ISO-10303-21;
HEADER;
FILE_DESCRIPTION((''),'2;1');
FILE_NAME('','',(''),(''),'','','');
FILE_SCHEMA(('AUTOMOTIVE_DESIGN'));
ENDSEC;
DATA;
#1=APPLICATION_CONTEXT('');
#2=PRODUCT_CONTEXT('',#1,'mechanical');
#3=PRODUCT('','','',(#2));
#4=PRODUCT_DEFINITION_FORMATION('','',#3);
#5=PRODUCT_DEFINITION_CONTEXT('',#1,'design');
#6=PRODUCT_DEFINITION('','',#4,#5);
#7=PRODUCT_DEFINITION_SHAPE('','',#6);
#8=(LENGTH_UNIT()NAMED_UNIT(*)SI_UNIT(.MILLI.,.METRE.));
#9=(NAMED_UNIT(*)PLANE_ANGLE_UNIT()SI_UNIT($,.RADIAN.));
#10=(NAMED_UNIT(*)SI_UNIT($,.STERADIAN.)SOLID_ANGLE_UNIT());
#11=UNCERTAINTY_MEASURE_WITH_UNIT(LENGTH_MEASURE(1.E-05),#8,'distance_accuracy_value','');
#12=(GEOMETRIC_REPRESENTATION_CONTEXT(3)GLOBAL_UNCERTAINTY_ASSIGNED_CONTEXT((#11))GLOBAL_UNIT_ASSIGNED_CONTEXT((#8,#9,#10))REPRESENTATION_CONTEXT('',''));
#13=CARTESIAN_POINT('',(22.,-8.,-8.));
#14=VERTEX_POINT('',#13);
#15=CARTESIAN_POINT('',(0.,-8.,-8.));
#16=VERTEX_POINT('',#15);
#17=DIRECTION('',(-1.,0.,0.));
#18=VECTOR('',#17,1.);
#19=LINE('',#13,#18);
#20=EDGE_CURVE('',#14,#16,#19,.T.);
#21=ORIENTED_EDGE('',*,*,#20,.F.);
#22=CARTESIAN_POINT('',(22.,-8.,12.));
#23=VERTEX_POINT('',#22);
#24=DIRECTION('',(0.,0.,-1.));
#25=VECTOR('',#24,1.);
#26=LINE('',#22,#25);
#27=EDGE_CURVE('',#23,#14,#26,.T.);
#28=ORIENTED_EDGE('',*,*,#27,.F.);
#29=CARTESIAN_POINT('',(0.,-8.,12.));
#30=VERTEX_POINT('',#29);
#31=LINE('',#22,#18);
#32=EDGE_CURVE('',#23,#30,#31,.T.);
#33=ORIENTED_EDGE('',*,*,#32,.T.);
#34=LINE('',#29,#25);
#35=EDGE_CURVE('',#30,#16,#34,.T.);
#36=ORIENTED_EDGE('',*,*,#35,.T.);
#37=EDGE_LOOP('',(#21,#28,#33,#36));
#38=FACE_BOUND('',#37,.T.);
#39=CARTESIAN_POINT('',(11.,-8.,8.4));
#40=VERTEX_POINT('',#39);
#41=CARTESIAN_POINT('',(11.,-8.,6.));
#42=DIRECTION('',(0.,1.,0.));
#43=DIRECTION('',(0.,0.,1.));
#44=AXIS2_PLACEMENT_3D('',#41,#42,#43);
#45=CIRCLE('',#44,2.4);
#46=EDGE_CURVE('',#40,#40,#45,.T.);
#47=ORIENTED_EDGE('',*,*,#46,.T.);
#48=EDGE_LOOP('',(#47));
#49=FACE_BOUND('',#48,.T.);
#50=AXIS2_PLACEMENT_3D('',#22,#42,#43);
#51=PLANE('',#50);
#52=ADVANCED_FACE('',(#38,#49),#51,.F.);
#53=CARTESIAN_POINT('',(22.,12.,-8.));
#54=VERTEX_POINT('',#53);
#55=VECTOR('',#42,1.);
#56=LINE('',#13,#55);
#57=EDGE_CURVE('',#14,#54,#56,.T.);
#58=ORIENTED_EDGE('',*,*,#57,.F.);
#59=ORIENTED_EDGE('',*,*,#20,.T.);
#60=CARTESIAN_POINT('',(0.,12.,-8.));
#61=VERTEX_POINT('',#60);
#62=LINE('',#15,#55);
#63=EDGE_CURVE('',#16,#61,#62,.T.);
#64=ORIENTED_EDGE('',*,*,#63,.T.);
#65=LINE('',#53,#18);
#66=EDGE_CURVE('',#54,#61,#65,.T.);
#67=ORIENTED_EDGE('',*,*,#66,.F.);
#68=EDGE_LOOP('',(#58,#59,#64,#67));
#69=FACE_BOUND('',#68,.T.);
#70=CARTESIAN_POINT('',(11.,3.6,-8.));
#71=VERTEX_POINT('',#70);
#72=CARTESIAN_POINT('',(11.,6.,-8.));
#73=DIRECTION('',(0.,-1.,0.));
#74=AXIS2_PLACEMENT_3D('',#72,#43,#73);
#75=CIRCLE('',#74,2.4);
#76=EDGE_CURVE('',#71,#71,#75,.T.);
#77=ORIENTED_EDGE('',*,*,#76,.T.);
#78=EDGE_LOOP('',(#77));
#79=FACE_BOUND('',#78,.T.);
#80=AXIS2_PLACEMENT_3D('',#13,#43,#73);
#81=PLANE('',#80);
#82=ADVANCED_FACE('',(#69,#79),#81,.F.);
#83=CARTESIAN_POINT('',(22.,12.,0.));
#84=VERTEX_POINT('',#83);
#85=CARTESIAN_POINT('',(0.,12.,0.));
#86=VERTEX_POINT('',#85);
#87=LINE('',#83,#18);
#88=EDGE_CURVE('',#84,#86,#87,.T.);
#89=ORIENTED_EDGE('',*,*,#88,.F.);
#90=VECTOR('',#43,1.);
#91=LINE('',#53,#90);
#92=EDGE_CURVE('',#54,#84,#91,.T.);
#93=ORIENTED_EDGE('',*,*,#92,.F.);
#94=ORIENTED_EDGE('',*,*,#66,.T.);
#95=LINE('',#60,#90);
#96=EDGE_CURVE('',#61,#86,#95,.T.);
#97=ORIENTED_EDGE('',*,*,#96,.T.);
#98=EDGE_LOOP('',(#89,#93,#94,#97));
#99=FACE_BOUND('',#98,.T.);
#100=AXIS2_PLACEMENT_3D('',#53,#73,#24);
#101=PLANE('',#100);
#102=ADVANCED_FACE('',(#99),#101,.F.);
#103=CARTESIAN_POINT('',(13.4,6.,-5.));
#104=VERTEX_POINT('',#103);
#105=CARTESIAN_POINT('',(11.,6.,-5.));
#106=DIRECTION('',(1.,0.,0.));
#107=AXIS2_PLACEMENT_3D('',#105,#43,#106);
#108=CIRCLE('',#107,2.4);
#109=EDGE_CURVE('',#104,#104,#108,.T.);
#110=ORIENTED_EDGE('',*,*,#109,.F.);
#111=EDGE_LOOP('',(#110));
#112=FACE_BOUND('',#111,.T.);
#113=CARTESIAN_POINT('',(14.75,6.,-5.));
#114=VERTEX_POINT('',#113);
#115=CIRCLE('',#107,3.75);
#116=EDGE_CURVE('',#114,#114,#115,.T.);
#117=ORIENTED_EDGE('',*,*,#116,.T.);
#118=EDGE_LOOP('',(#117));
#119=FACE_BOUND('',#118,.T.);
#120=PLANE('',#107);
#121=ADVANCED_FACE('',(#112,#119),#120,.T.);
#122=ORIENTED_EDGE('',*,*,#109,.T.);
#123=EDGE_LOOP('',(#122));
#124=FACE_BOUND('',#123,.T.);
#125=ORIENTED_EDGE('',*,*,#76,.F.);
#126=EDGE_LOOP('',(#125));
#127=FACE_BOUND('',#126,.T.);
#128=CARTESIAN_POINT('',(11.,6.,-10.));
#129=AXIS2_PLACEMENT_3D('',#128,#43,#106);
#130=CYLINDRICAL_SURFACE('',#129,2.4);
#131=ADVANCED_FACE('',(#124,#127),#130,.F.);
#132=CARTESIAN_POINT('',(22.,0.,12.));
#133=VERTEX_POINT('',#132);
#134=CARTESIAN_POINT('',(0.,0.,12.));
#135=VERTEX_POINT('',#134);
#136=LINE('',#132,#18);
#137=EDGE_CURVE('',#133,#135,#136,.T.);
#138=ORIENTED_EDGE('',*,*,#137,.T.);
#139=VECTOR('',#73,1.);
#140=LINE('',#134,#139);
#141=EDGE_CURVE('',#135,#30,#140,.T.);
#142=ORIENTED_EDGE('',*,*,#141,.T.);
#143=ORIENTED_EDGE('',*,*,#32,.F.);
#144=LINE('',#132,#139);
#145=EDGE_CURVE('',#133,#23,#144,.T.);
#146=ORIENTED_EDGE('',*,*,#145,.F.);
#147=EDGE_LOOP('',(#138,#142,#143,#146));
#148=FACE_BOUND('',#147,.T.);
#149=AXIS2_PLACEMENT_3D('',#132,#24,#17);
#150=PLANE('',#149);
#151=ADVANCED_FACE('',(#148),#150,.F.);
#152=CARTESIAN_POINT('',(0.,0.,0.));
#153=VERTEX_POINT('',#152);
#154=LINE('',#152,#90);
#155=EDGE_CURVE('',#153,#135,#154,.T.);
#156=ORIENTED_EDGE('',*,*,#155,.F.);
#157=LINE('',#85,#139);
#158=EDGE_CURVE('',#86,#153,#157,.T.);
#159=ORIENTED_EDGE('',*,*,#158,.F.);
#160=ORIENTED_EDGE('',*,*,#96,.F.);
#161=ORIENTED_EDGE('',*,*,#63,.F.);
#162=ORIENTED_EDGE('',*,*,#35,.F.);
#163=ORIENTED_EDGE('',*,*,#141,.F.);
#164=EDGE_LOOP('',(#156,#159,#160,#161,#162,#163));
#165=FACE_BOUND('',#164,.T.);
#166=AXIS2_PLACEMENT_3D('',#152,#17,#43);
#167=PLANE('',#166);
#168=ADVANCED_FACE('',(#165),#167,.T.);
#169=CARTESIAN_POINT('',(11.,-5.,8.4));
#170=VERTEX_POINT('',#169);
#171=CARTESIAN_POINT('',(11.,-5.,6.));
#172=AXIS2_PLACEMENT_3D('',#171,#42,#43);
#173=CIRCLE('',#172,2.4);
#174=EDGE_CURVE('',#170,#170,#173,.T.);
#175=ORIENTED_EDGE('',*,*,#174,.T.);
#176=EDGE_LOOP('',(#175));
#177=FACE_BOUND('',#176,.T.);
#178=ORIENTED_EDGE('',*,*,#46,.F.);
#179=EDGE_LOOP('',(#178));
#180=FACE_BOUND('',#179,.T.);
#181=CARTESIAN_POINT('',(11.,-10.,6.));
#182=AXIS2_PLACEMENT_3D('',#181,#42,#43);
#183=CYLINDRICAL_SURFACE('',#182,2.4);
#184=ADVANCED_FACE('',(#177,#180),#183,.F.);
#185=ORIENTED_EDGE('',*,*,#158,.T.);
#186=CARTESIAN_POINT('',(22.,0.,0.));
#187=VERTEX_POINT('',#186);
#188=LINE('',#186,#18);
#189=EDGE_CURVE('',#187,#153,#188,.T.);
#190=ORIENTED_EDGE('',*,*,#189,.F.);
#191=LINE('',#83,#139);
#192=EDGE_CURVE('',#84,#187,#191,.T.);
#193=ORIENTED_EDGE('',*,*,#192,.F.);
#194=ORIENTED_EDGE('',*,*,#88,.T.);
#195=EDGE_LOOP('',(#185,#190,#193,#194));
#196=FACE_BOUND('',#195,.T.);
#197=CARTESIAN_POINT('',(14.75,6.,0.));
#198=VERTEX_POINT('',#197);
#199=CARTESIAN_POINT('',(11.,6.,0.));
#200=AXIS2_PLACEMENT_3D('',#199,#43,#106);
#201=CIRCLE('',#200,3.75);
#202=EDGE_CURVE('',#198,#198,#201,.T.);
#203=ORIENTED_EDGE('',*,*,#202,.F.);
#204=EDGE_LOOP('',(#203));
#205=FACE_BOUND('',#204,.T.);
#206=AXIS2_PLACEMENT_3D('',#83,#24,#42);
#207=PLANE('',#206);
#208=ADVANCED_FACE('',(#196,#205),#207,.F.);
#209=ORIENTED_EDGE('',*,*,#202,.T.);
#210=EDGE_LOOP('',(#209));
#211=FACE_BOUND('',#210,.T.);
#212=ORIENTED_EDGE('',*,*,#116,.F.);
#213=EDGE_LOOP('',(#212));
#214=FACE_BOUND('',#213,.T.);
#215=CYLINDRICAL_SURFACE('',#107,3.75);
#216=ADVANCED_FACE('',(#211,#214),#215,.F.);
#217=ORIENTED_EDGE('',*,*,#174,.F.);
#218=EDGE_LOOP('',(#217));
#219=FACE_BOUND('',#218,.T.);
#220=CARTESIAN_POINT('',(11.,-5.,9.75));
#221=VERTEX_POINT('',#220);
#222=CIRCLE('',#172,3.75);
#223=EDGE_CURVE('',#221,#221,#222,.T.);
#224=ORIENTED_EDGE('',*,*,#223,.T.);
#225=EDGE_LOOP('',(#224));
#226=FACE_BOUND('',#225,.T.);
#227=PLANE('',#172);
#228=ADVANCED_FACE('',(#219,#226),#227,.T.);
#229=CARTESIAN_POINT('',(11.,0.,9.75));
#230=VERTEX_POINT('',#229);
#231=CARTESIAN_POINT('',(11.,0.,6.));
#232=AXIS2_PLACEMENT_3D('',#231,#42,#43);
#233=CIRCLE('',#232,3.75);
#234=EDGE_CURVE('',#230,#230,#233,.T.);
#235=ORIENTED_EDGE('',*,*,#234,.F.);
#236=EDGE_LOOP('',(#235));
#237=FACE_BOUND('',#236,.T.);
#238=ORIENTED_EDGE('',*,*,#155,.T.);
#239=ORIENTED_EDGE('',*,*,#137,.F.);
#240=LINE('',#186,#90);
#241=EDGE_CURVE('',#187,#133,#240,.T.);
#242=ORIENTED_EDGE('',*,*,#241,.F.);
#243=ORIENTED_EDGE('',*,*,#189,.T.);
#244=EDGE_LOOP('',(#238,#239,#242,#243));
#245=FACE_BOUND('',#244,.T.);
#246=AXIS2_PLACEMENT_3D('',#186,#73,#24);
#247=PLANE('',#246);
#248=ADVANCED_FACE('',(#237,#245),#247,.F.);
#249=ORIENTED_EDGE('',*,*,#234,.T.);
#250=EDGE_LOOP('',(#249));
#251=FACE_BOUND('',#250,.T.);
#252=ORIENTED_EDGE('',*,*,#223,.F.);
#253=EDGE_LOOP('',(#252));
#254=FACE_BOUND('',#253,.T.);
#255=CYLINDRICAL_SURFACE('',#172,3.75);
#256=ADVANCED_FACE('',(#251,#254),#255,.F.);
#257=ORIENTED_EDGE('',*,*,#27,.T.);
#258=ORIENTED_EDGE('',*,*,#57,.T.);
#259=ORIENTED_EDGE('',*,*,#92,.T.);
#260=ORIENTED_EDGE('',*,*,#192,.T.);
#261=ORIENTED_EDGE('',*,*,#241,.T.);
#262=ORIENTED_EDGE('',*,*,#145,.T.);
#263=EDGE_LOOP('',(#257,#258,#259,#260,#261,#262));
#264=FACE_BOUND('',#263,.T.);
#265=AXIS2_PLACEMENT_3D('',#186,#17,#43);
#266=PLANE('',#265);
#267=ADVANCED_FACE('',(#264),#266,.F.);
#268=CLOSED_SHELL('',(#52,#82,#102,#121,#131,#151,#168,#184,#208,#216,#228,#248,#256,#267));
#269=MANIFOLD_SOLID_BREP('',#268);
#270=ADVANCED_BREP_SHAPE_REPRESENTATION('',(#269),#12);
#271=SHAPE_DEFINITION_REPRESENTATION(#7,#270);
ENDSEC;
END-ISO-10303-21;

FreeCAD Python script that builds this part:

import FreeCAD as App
import Part
import Sketcher
from FreeCAD import Vector
Q = App.Units.Quantity

doc = App.newDocument("Part")
body = doc.addObject("PartDesign::Body", "Body")

# Sketch on YZ plane
sketch1 = doc.addObject("Sketcher::SketchObject", "Sketch")
body.addObject(sketch1)
sketch1.AttachmentSupport = (doc.YZ_Plane, [""])
sketch1.MapMode = "FlatFace"
sketch1.addGeometry([
    Part.LineSegment(Vector(0, 0, 0), Vector(0, 12, 0)),  # 0
    Part.LineSegment(Vector(0, 12, 0), Vector(-8, 12, 0)),  # 1
    Part.LineSegment(Vector(-8, 12, 0), Vector(-8, -8, 0)),  # 2
    Part.LineSegment(Vector(-8, -8, 0), Vector(12, -8, 0)),  # 3
    Part.LineSegment(Vector(12, -8, 0), Vector(12, 0, 0)),  # 4
    Part.LineSegment(Vector(12, 0, 0), Vector(0, 0, 0)),  # 5
], False)
sketch1.addConstraint([
    Sketcher.Constraint("Coincident", 0, 2, 1, 1),
    Sketcher.Constraint("Coincident", 1, 2, 2, 1),
    Sketcher.Constraint("Coincident", 2, 2, 3, 1),
    Sketcher.Constraint("Coincident", 3, 2, 4, 1),
    Sketcher.Constraint("Coincident", 4, 2, 5, 1),
    Sketcher.Constraint("Coincident", 5, 2, 0, 1),
    Sketcher.Constraint("Vertical", 0),
    Sketcher.Constraint("Horizontal", 1),
    Sketcher.Constraint("Vertical", 2),
    Sketcher.Constraint("Horizontal", 3),
    Sketcher.Constraint("Vertical", 4),
    Sketcher.Constraint("Horizontal", 5),
    Sketcher.Constraint("Coincident", 5, 2, -1, 1),
    Sketcher.Constraint("Equal", 5, 0),
    Sketcher.Constraint("Equal", 3, 2),
    Sketcher.Constraint("DistanceX", 1, 2, 1, 1, Q("8 mm")),
    Sketcher.Constraint("DistanceX", 3, 1, 3, 2, Q("20 mm")),
])
pad1 = doc.addObject("PartDesign::Pad", "Pad")
body.addObject(pad1)
pad1.Profile = sketch1
pad1.Length = 22

# Sketch on XY plane
sketch2 = doc.addObject("Sketcher::SketchObject", "Sketch001")
body.addObject(sketch2)
sketch2.AttachmentSupport = (doc.XY_Plane, [""])
sketch2.MapMode = "FlatFace"
sketch2.addGeometry(Part.Circle(Vector(11, 6, 0), Vector(0, 0, 1), 3.8), False)
sketch2.addConstraint([
    Sketcher.Constraint("Diameter", 0, Q("7.5 mm")),
    Sketcher.Constraint("DistanceX", -1, 1, 0, 3, Q("11 mm")),
    Sketcher.Constraint("DistanceY", -1, 1, 0, 3, Q("6 mm")),
])
pocket1 = doc.addObject("PartDesign::Pocket", "Pocket")
body.addObject(pocket1)
pocket1.Profile = sketch2
pocket1.Length = 5

# Sketch on XY plane
sketch3 = doc.addObject("Sketcher::SketchObject", "Sketch002")
body.addObject(sketch3)
sketch3.AttachmentSupport = (doc.XY_Plane, [""])
sketch3.MapMode = "FlatFace"
sketch3.AttachmentOffset = App.Placement(Vector(0, 0, -5), App.Rotation())
sketch3.addGeometry(Part.Circle(Vector(11, 6, 0), Vector(0, 0, 1), 2.4), False)
sketch3.addConstraint([
    Sketcher.Constraint("Diameter", 0, Q("4.8 mm")),
    Sketcher.Constraint("DistanceX", -1, 1, 0, 3, Q("11 mm")),
    Sketcher.Constraint("DistanceY", -1, 1, 0, 3, Q("6 mm")),
])
pocket2 = doc.addObject("PartDesign::Pocket", "Pocket001")
body.addObject(pocket2)
pocket2.Profile = sketch3
pocket2.Length = 5

# Sketch on XZ plane
sketch4 = doc.addObject("Sketcher::SketchObject", "Sketch003")
body.addObject(sketch4)
sketch4.AttachmentSupport = (doc.XZ_Plane, [""])
sketch4.MapMode = "FlatFace"
sketch4.addGeometry(Part.Circle(Vector(11, 6, 0), Vector(0, 0, 1), 3.8), False)
sketch4.addConstraint([
    Sketcher.Constraint("Diameter", 0, Q("7.5 mm")),
    Sketcher.Constraint("DistanceX", -1, 1, 0, 3, Q("11 mm")),
    Sketcher.Constraint("DistanceY", -1, 1, 0, 3, Q("6 mm")),
])
pocket3 = doc.addObject("PartDesign::Pocket", "Pocket002")
body.addObject(pocket3)
pocket3.Profile = sketch4
pocket3.Length = 5
pocket3.Reversed = True

# Sketch on XZ plane
sketch5 = doc.addObject("Sketcher::SketchObject", "Sketch004")
body.addObject(sketch5)
sketch5.AttachmentSupport = (doc.XZ_Plane, [""])
sketch5.MapMode = "FlatFace"
sketch5.AttachmentOffset = App.Placement(Vector(0, 0, 5), App.Rotation())
sketch5.addGeometry(Part.Circle(Vector(11, 6, 0), Vector(0, 0, 1), 2.4), False)
sketch5.addConstraint([
    Sketcher.Constraint("Diameter", 0, Q("4.8 mm")),
    Sketcher.Constraint("DistanceX", -1, 1, 0, 3, Q("11 mm")),
    Sketcher.Constraint("DistanceY", -1, 1, 0, 3, Q("6 mm")),
])
pocket4 = doc.addObject("PartDesign::Pocket", "Pocket003")
body.addObject(pocket4)
pocket4.Profile = sketch5
pocket4.Length = 5
pocket4.Reversed = True

doc.recompute()
